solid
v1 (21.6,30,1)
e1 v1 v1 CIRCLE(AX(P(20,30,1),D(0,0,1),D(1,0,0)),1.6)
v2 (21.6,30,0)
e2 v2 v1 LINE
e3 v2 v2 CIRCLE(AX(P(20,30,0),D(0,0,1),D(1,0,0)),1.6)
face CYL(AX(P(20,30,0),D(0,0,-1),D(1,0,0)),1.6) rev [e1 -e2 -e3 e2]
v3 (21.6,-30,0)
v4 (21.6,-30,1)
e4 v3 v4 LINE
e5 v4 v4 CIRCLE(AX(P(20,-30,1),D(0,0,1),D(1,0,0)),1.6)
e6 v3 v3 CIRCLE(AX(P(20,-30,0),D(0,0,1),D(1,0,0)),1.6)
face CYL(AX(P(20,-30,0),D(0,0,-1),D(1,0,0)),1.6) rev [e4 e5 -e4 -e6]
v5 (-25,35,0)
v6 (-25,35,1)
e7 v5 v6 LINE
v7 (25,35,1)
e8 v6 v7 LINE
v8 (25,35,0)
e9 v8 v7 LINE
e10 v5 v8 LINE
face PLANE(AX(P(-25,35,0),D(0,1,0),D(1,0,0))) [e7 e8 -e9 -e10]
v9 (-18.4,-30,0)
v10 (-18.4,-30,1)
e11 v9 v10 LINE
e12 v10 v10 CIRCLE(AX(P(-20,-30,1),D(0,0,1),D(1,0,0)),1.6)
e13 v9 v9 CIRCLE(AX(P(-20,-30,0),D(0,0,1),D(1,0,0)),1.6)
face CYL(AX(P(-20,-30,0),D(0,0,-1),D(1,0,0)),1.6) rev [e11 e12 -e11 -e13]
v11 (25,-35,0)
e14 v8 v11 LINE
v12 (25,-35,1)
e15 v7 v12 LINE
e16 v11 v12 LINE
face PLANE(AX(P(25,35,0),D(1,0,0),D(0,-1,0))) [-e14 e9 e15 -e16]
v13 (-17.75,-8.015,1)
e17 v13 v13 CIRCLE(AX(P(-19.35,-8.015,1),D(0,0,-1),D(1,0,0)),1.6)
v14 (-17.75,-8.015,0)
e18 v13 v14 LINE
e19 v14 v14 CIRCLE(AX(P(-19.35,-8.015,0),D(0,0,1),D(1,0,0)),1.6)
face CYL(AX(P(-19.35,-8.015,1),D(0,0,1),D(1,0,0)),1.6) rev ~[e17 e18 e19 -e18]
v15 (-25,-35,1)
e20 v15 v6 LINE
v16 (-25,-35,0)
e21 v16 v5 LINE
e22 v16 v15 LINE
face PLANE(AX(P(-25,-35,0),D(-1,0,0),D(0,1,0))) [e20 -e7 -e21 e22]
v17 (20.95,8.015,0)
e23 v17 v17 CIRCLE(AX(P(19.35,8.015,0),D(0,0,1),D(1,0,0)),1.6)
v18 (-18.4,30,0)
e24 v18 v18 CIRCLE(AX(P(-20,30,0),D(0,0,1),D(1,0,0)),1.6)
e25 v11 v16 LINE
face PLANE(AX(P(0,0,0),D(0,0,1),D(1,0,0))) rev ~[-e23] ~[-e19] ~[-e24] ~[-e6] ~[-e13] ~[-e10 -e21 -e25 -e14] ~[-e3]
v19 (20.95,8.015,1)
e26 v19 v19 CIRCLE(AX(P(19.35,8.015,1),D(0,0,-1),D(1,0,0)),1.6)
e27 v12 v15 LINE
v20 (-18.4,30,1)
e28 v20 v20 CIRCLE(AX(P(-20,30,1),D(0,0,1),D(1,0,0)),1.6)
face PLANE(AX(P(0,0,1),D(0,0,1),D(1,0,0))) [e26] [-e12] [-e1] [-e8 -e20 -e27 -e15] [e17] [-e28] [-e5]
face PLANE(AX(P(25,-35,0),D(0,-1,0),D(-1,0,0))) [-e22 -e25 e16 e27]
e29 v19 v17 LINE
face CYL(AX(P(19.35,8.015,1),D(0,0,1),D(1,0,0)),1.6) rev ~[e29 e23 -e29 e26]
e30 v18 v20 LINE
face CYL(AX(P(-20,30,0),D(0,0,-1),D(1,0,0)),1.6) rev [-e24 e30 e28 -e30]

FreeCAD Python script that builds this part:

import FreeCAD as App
import Part
import Sketcher


def add_polygon(sketch, points):
    """Adds a closed chain of lines whose ends are joined by coincident constraints."""
    first, n = sketch.GeometryCount, len(points)
    for a, b in zip(points, points[1:] + points[:1]):
        sketch.addGeometry(Part.LineSegment(App.Vector(*a, 0), App.Vector(*b, 0)), False)
    for i in range(n):
        sketch.addConstraint(Sketcher.Constraint("Coincident", first + i, 2, first + (i + 1) % n, 1))

doc = App.newDocument("Part")
body = doc.addObject("PartDesign::Body", "Body")

sketch1 = body.newObject("Sketcher::SketchObject", "Sketch")
sketch1.AttachmentSupport = (doc.getObject("XY_Plane"), [""])
sketch1.MapMode = "FlatFace"
add_polygon(sketch1, [(25, 35), (-25, 35), (-25, -35), (25, -35)])
sketch1.addGeometry(Part.Circle(App.Vector(-20, -30, 0), App.Vector(0, 0, 1), 1.6), False)
sketch1.addGeometry(Part.Circle(App.Vector(20, -30, 0), App.Vector(0, 0, 1), 1.6), False)
sketch1.addGeometry(Part.Circle(App.Vector(-20, 30, 0), App.Vector(0, 0, 1), 1.6), False)
sketch1.addGeometry(Part.Circle(App.Vector(20, 30, 0), App.Vector(0, 0, 1), 1.6), False)
sketch1.addConstraint(Sketcher.Constraint("Horizontal", 0))
sketch1.addConstraint(Sketcher.Constraint("Vertical", 1))
sketch1.addConstraint(Sketcher.Constraint("Horizontal", 2))
sketch1.addConstraint(Sketcher.Constraint("Vertical", 3))
sketch1.addConstraint(Sketcher.Constraint("Equal", 4, 5))
sketch1.addConstraint(Sketcher.Constraint("Equal", 5, 6))
sketch1.addConstraint(Sketcher.Constraint("Equal", 6, 7))
sketch1.addConstraint(Sketcher.Constraint("Symmetric", 5, 3, 6, 3, -1, 1))
sketch1.addConstraint(Sketcher.Constraint("Symmetric", 4, 3, 7, 3, -1, 1))
sketch1.addConstraint(Sketcher.Constraint("Symmetric", 0, 2, 2, 2, -1, 1))
sketch1.addConstraint(Sketcher.Constraint("Symmetric", 4, 3, 5, 3, -2))
sketch1.addConstraint(Sketcher.Constraint("Diameter", 4, 3.2))
sketch1.addConstraint(Sketcher.Constraint("DistanceX", 0, 2, 0, 1, 50.0))
sketch1.addConstraint(Sketcher.Constraint("DistanceY", 1, 2, 1, 1, 70.0))
sketch1.addConstraint(Sketcher.Constraint("DistanceX", 0, 2, 6, 3, 5.0))
sketch1.addConstraint(Sketcher.Constraint("DistanceY", 6, 3, 0, 2, 5.0))
pad1 = body.newObject("PartDesign::Pad", "Pad")
pad1.Profile = sketch1
pad1.Length = 1

sketch2 = body.newObject("Sketcher::SketchObject", "Sketch001")
sketch2.AttachmentSupport = (doc.getObject("XY_Plane"), [""])
sketch2.MapMode = "FlatFace"
sketch2.AttachmentOffset = App.Placement(App.Vector(0, 0, 1), App.Rotation())
sketch2.addGeometry(Part.Circle(App.Vector(19.4, 8, 0), App.Vector(0, 0, 1), 1.6), False)
sketch2.addGeometry(Part.Circle(App.Vector(-19.4, -8, 0), App.Vector(0, 0, 1), 1.6), False)
sketch2.addConstraint(Sketcher.Constraint("Equal", 0, 1))
sketch2.addConstraint(Sketcher.Constraint("Symmetric", 0, 3, 1, 3, -1, 1))
sketch2.addConstraint(Sketcher.Constraint("Diameter", 0, 3.2))
sketch2.addConstraint(Sketcher.Constraint("DistanceX", 1, 3, 0, 3, 38.7))
sketch2.addConstraint(Sketcher.Constraint("DistanceY", 1, 3, 0, 3, 16.03))
pocket1 = body.newObject("PartDesign::Pocket", "Pocket")
pocket1.Profile = sketch2
pocket1.Length = 10

doc.recompute()
